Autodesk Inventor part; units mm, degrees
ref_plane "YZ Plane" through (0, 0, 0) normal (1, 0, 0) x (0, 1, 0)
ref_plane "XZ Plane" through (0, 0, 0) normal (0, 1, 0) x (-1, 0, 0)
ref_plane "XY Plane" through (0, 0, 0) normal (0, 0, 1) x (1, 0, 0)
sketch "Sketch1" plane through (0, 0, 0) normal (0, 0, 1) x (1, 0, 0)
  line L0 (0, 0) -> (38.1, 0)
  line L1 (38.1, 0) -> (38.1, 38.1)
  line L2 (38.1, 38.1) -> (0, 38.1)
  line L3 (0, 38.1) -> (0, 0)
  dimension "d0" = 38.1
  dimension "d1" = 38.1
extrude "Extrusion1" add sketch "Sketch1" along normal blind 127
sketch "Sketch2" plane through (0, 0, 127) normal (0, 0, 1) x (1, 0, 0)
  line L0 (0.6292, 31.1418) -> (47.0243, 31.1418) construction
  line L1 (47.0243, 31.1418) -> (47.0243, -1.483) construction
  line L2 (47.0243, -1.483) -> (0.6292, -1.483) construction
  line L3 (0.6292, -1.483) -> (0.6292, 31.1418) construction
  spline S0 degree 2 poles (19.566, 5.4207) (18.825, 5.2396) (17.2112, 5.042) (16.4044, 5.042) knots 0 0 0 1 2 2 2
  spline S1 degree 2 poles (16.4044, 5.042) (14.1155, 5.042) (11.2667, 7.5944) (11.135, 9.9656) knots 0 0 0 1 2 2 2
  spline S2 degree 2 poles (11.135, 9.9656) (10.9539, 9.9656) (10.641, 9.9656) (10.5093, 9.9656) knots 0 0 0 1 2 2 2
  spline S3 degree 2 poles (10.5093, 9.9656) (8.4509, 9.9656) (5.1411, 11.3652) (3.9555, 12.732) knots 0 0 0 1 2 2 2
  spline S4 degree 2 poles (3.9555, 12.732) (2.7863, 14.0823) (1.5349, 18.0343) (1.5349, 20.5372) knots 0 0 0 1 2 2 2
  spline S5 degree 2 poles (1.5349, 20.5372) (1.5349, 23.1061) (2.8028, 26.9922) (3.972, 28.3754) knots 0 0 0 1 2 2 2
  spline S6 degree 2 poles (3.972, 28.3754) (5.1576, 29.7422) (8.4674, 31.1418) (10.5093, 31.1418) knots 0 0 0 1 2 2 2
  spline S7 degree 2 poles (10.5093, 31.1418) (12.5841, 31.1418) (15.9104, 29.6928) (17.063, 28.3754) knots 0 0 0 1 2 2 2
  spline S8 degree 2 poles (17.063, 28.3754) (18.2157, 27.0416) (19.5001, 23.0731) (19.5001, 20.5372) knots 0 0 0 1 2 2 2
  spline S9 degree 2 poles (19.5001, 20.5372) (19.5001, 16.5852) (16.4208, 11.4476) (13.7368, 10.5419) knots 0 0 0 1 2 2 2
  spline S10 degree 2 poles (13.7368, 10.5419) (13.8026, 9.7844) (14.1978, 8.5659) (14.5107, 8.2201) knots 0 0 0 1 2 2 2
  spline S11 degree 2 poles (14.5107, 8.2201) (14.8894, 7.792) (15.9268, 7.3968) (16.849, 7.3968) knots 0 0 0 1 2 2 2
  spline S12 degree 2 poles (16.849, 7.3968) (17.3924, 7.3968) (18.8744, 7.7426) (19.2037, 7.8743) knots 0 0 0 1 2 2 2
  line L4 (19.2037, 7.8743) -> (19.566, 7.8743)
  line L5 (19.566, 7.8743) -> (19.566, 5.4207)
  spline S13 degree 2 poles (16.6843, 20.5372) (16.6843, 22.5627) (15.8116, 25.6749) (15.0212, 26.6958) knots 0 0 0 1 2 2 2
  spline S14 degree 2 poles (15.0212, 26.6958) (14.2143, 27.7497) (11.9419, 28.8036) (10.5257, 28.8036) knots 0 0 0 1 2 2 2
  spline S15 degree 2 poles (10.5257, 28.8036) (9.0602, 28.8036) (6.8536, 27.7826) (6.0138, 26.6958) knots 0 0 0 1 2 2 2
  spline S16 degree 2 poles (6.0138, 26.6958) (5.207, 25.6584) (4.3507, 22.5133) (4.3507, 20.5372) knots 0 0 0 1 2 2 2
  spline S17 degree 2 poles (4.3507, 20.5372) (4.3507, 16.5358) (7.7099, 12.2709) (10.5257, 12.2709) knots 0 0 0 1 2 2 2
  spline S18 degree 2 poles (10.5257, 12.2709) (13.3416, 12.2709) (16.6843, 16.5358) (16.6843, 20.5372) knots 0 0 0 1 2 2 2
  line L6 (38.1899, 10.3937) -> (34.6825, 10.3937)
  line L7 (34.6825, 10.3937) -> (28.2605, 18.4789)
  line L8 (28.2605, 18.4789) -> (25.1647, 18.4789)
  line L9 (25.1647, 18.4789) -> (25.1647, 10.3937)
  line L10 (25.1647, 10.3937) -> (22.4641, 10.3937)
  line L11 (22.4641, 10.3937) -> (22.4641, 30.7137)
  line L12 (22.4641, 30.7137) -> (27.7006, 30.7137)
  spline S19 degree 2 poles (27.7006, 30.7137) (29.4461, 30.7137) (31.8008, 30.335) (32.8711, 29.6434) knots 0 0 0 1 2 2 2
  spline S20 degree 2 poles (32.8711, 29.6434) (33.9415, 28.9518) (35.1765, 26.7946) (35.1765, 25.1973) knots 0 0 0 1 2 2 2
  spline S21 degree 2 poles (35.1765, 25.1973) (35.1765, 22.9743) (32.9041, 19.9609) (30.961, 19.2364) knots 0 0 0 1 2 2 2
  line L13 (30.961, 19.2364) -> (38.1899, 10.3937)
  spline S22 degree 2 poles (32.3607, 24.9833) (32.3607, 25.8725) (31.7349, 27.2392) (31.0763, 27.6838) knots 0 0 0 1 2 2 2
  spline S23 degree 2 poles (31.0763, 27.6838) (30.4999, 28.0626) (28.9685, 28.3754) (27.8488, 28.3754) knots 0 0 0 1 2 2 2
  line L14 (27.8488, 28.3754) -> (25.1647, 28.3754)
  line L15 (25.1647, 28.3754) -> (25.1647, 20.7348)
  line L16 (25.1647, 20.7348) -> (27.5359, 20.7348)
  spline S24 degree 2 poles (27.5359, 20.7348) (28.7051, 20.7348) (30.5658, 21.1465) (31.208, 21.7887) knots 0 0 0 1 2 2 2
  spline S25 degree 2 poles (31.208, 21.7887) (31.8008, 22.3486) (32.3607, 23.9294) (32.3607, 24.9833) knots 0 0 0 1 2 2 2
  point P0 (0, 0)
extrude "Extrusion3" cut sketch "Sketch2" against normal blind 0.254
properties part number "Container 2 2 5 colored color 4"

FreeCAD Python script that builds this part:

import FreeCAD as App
import Part
import Sketcher

V = App.Vector
Q = App.Units.Quantity


def add_polygon(sketch, points):
    """Adds a closed chain of lines whose ends are joined by coincident constraints."""
    first, n = sketch.GeometryCount, len(points)
    for a, b in zip(points, points[1:] + points[:1]):
        sketch.addGeometry(Part.LineSegment(App.Vector(*a, 0), App.Vector(*b, 0)), False)
    for i in range(n):
        sketch.addConstraint(Sketcher.Constraint("Coincident", first + i, 2, first + (i + 1) % n, 1))

doc = App.newDocument("Part")
params = doc.addObject("Spreadsheet::Sheet", "Params")
for row, (alias, value) in enumerate([
    ("sketch1_width", "1.5 in"),
    ("pad1_length", "5 in"),
    ("sketch2_height", "0.8 in"),
    ("pocket1_length", "0.01 in"),
], start=1):
    params.set(f"A{row}", alias)
    params.set(f"B{row}", "=" + value)
    params.setAlias(f"B{row}", alias)

body = doc.addObject("PartDesign::Body", "Body")

# Sketch on XY plane
sketch1 = body.newObject("Sketcher::SketchObject", "Sketch")
sketch1.AttachmentSupport = (doc.getObject("XY_Plane"), [""])
sketch1.MapMode = "FlatFace"
add_polygon(sketch1, [(0, 38), (0, 0), (38, 0), (38, 38)])  # lines 0-3
sketch1.addConstraint(Sketcher.Constraint("Vertical", 0))
sketch1.addConstraint(Sketcher.Constraint("Horizontal", 1))
sketch1.addConstraint(Sketcher.Constraint("Vertical", 2))
sketch1.addConstraint(Sketcher.Constraint("Horizontal", 3))
sketch1.addConstraint(Sketcher.Constraint("Coincident", 0, 2, -1, 1))
sketch1.addConstraint(Sketcher.Constraint("Equal", 3, 0))
sketch1.addConstraint(Sketcher.Constraint("DistanceX", 1, 1, 1, 2, Q("1.5 in")))
sketch1.setExpression("Constraints[10]", "Params.sketch1_width")
pad1 = body.newObject("PartDesign::Pad", "Pad")
pad1.Profile = sketch1
pad1.setExpression("Length", "Params.pad1_length")

# Sketch on XY plane
sketch2 = body.newObject("Sketcher::SketchObject", "Sketch001")
sketch2.AttachmentSupport = (doc.getObject("XY_Plane"), [""])
sketch2.MapMode = "FlatFace"
sketch2.AttachmentOffset = App.Placement(V(0, 0, 5 * 25.4), App.Rotation())
sketch2.addGeometry(Part.BSplineCurve([V(19.566, 5.4207, 0), V(18.825, 5.2396, 0), V(17.2112, 5.042, 0), V(16.4044, 5.042, 0)], [3, 1, 3], [0, 1, 2], False, 2, [1, 1, 1, 1], False), False)
sketch2.addGeometry(Part.LineSegment(V(19.566, 5.4207, 0), V(19.566, 7.8743, 0)), False)
sketch2.addGeometry(Part.LineSegment(V(19.566, 7.8743, 0), V(19.2037, 7.8743, 0)), False)
sketch2.addGeometry(Part.BSplineCurve([V(16.849, 7.3968, 0), V(17.3924, 7.3968, 0), V(18.8744, 7.7426, 0), V(19.2037, 7.8743, 0)], [3, 1, 3], [0, 1, 2], False, 2, [1, 1, 1, 1], False), False)
sketch2.addGeometry(Part.BSplineCurve([V(14.5107, 8.2201, 0), V(14.8894, 7.792, 0), V(15.9268, 7.3968, 0), V(16.849, 7.3968, 0)], [3, 1, 3], [0, 1, 2], False, 2, [1, 1, 1, 1], False), False)
sketch2.addGeometry(Part.BSplineCurve([V(13.7368, 10.5419, 0), V(13.8026, 9.7844, 0), V(14.1978, 8.5659, 0), V(14.5107, 8.2201, 0)], [3, 1, 3], [0, 1, 2], False, 2, [1, 1, 1, 1], False), False)
sketch2.addGeometry(Part.BSplineCurve([V(19.5001, 20.5372, 0), V(19.5001, 16.5852, 0), V(16.4208, 11.4476, 0), V(13.7368, 10.5419, 0)], [3, 1, 3], [0, 1, 2], False, 2, [1, 1, 1, 1], False), False)
sketch2.addGeometry(Part.BSplineCurve([V(17.063, 28.3754, 0), V(18.2157, 27.0416, 0), V(19.5001, 23.0731, 0), V(19.5001, 20.5372, 0)], [3, 1, 3], [0, 1, 2], False, 2, [1, 1, 1, 1], False), False)
sketch2.addGeometry(Part.BSplineCurve([V(10.5093, 31.1418, 0), V(12.5841, 31.1418, 0), V(15.9104, 29.6928, 0), V(17.063, 28.3754, 0)], [3, 1, 3], [0, 1, 2], False, 2, [1, 1, 1, 1], False), False)
sketch2.addGeometry(Part.BSplineCurve([V(3.972, 28.3754, 0), V(5.1576, 29.7422, 0), V(8.4674, 31.1418, 0), V(10.5093, 31.1418, 0)], [3, 1, 3], [0, 1, 2], False, 2, [1, 1, 1, 1], False), False)
sketch2.addGeometry(Part.BSplineCurve([V(1.5349, 20.5372, 0), V(1.5349, 23.1061, 0), V(2.8028, 26.9922, 0), V(3.972, 28.3754, 0)], [3, 1, 3], [0, 1, 2], False, 2, [1, 1, 1, 1], False), False)
sketch2.addGeometry(Part.BSplineCurve([V(3.9555, 12.732, 0), V(2.7863, 14.0823, 0), V(1.5349, 18.0343, 0), V(1.5349, 20.5372, 0)], [3, 1, 3], [0, 1, 2], False, 2, [1, 1, 1, 1], False), False)
sketch2.addGeometry(Part.BSplineCurve([V(10.5093, 9.9656, 0), V(8.4509, 9.9656, 0), V(5.1411, 11.3652, 0), V(3.9555, 12.732, 0)], [3, 1, 3], [0, 1, 2], False, 2, [1, 1, 1, 1], False), False)
sketch2.addGeometry(Part.BSplineCurve([V(11.135, 9.9656, 0), V(10.9539, 9.9656, 0), V(10.641, 9.9656, 0), V(10.5093, 9.9656, 0)], [3, 1, 3], [0, 1, 2], False, 2, [1, 1, 1, 1], False), False)
sketch2.addGeometry(Part.BSplineCurve([V(16.4044, 5.042, 0), V(14.1155, 5.042, 0), V(11.2667, 7.5944, 0), V(11.135, 9.9656, 0)], [3, 1, 3], [0, 1, 2], False, 2, [1, 1, 1, 1], False), False)
sketch2.addGeometry(Part.BSplineCurve([V(16.6843, 20.5372, 0), V(16.6843, 22.5627, 0), V(15.8116, 25.6749, 0), V(15.0212, 26.6958, 0)], [3, 1, 3], [0, 1, 2], False, 2, [1, 1, 1, 1], False), False)
sketch2.addGeometry(Part.BSplineCurve([V(10.5257, 12.2709, 0), V(13.3416, 12.2709, 0), V(16.6843, 16.5358, 0), V(16.6843, 20.5372, 0)], [3, 1, 3], [0, 1, 2], False, 2, [1, 1, 1, 1], False), False)
sketch2.addGeometry(Part.BSplineCurve([V(4.3507, 20.5372, 0), V(4.3507, 16.5358, 0), V(7.7099, 12.2709, 0), V(10.5257, 12.2709, 0)], [3, 1, 3], [0, 1, 2], False, 2, [1, 1, 1, 1], False), False)
sketch2.addGeometry(Part.BSplineCurve([V(6.0138, 26.6958, 0), V(5.207, 25.6584, 0), V(4.3507, 22.5133, 0), V(4.3507, 20.5372, 0)], [3, 1, 3], [0, 1, 2], False, 2, [1, 1, 1, 1], False), False)
sketch2.addGeometry(Part.BSplineCurve([V(10.5257, 28.8036, 0), V(9.0602, 28.8036, 0), V(6.8536, 27.7826, 0), V(6.0138, 26.6958, 0)], [3, 1, 3], [0, 1, 2], False, 2, [1, 1, 1, 1], False), False)
sketch2.addGeometry(Part.BSplineCurve([V(15.0212, 26.6958, 0), V(14.2143, 27.7497, 0), V(11.9419, 28.8036, 0), V(10.5257, 28.8036, 0)], [3, 1, 3], [0, 1, 2], False, 2, [1, 1, 1, 1], False), False)
sketch2.addGeometry(Part.LineSegment(V(34.6825, 10.3937, 0), V(38.1899, 10.3937, 0)), False)
sketch2.addGeometry(Part.LineSegment(V(38.1899, 10.3937, 0), V(30.961, 19.2364, 0)), False)
sketch2.addGeometry(Part.BSplineCurve([V(35.1765, 25.1973, 0), V(35.1765, 22.9743, 0), V(32.9041, 19.9609, 0), V(30.961, 19.2364, 0)], [3, 1, 3], [0, 1, 2], False, 2, [1, 1, 1, 1], False), False)
sketch2.addGeometry(Part.BSplineCurve([V(32.8711, 29.6434, 0), V(33.9415, 28.9518, 0), V(35.1765, 26.7946, 0), V(35.1765, 25.1973, 0)], [3, 1, 3], [0, 1, 2], False, 2, [1, 1, 1, 1], False), False)
sketch2.addGeometry(Part.BSplineCurve([V(27.7006, 30.7137, 0), V(29.4461, 30.7137, 0), V(31.8008, 30.335, 0), V(32.8711, 29.6434, 0)], [3, 1, 3], [0, 1, 2], False, 2, [1, 1, 1, 1], False), False)
sketch2.addGeometry(Part.LineSegment(V(27.7006, 30.7137, 0), V(22.4641, 30.7137, 0)), False)
sketch2.addGeometry(Part.LineSegment(V(22.4641, 30.7137, 0), V(22.4641, 10.3937, 0)), False)
sketch2.addGeometry(Part.LineSegment(V(22.4641, 10.3937, 0), V(25.1647, 10.3937, 0)), False)
sketch2.addGeometry(Part.LineSegment(V(25.1647, 10.3937, 0), V(25.1647, 18.4789, 0)), False)
sketch2.addGeometry(Part.LineSegment(V(25.1647, 18.4789, 0), V(28.2605, 18.4789, 0)), False)
sketch2.addGeometry(Part.LineSegment(V(28.2605, 18.4789, 0), V(34.6825, 10.3937, 0)), False)
sketch2.addGeometry(Part.BSplineCurve([V(32.3607, 24.9833, 0), V(32.3607, 25.8725, 0), V(31.7349, 27.2392, 0), V(31.0763, 27.6838, 0)], [3, 1, 3], [0, 1, 2], False, 2, [1, 1, 1, 1], False), False)
sketch2.addGeometry(Part.BSplineCurve([V(31.208, 21.7887, 0), V(31.8008, 22.3486, 0), V(32.3607, 23.9294, 0), V(32.3607, 24.9833, 0)], [3, 1, 3], [0, 1, 2], False, 2, [1, 1, 1, 1], False), False)
sketch2.addGeometry(Part.BSplineCurve([V(27.5359, 20.7348, 0), V(28.7051, 20.7348, 0), V(30.5658, 21.1465, 0), V(31.208, 21.7887, 0)], [3, 1, 3], [0, 1, 2], False, 2, [1, 1, 1, 1], False), False)
sketch2.addGeometry(Part.LineSegment(V(27.5359, 20.7348, 0), V(25.1647, 20.7348, 0)), False)
sketch2.addGeometry(Part.LineSegment(V(25.1647, 20.7348, 0), V(25.1647, 28.3754, 0)), False)
sketch2.addGeometry(Part.LineSegment(V(25.1647, 28.3754, 0), V(27.8488, 28.3754, 0)), False)
sketch2.addGeometry(Part.BSplineCurve([V(31.0763, 27.6838, 0), V(30.4999, 28.0626, 0), V(28.9685, 28.3754, 0), V(27.8488, 28.3754, 0)], [3, 1, 3], [0, 1, 2], False, 2, [1, 1, 1, 1], False), False)
sketch2.addConstraint(Sketcher.Constraint("Block", 0))
sketch2.addConstraint(Sketcher.Constraint("Block", 3))
sketch2.addConstraint(Sketcher.Constraint("Block", 4))
sketch2.addConstraint(Sketcher.Constraint("Block", 5))
sketch2.addConstraint(Sketcher.Constraint("Block", 6))
sketch2.addConstraint(Sketcher.Constraint("Block", 7))
sketch2.addConstraint(Sketcher.Constraint("Block", 8))
sketch2.addConstraint(Sketcher.Constraint("Block", 9))
sketch2.addConstraint(Sketcher.Constraint("Block", 10))
sketch2.addConstraint(Sketcher.Constraint("Block", 11))
sketch2.addConstraint(Sketcher.Constraint("Block", 12))
sketch2.addConstraint(Sketcher.Constraint("Block", 13))
sketch2.addConstraint(Sketcher.Constraint("Block", 14))
sketch2.addConstraint(Sketcher.Constraint("Block", 15))
sketch2.addConstraint(Sketcher.Constraint("Block", 16))
sketch2.addConstraint(Sketcher.Constraint("Block", 17))
sketch2.addConstraint(Sketcher.Constraint("Block", 18))
sketch2.addConstraint(Sketcher.Constraint("Block", 19))
sketch2.addConstraint(Sketcher.Constraint("Block", 20))
sketch2.addConstraint(Sketcher.Constraint("Block", 23))
sketch2.addConstraint(Sketcher.Constraint("Block", 24))
sketch2.addConstraint(Sketcher.Constraint("Block", 25))
sketch2.addConstraint(Sketcher.Constraint("Block", 32))
sketch2.addConstraint(Sketcher.Constraint("Block", 33))
sketch2.addConstraint(Sketcher.Constraint("Block", 34))
sketch2.addConstraint(Sketcher.Constraint("Block", 38))
sketch2.addConstraint(Sketcher.Constraint("Coincident", 0, 1, 1, 1))
sketch2.addConstraint(Sketcher.Constraint("Coincident", 1, 2, 2, 1))
sketch2.addConstraint(Sketcher.Constraint("Coincident", 2, 2, 3, 2))
sketch2.addConstraint(Sketcher.Constraint("Coincident", 21, 2, 22, 1))
sketch2.addConstraint(Sketcher.Constraint("Coincident", 22, 2, 23, 2))
sketch2.addConstraint(Sketcher.Constraint("Coincident", 25, 1, 26, 1))
sketch2.addConstraint(Sketcher.Constraint("Coincident", 26, 2, 27, 1))
sketch2.addConstraint(Sketcher.Constraint("Coincident", 27, 2, 28, 1))
sketch2.addConstraint(Sketcher.Constraint("Coincident", 28, 2, 29, 1))
sketch2.addConstraint(Sketcher.Constraint("Coincident", 29, 2, 30, 1))
sketch2.addConstraint(Sketcher.Constraint("Coincident", 30, 2, 31, 1))
sketch2.addConstraint(Sketcher.Constraint("Coincident", 31, 2, 21, 1))
sketch2.addConstraint(Sketcher.Constraint("Coincident", 34, 1, 35, 1))
sketch2.addConstraint(Sketcher.Constraint("Coincident", 35, 2, 36, 1))
sketch2.addConstraint(Sketcher.Constraint("Coincident", 36, 2, 37, 1))
sketch2.addConstraint(Sketcher.Constraint("Coincident", 37, 2, 38, 2))
sketch2.addConstraint(Sketcher.Constraint("Vertical", 1))
sketch2.addConstraint(Sketcher.Constraint("Horizontal", 2))
sketch2.addConstraint(Sketcher.Constraint("Horizontal", 21))
sketch2.addConstraint(Sketcher.Constraint("Horizontal", 26))
sketch2.addConstraint(Sketcher.Constraint("Vertical", 27))
sketch2.addConstraint(Sketcher.Constraint("Horizontal", 28))
sketch2.addConstraint(Sketcher.Constraint("Vertical", 29))
sketch2.addConstraint(Sketcher.Constraint("Horizontal", 30))
sketch2.addConstraint(Sketcher.Constraint("Horizontal", 35))
sketch2.addConstraint(Sketcher.Constraint("Vertical", 36))
sketch2.addConstraint(Sketcher.Constraint("Horizontal", 37))
sketch2.addConstraint(Sketcher.Constraint("Horizontal", 21, 2, 27, 2))
sketch2.addConstraint(Sketcher.Constraint("Vertical", 29, 2, 35, 2))
sketch2.addConstraint(Sketcher.Constraint("DistanceY", 27, 2, 27, 1, Q("0.8 in")))
sketch2.addConstraint(Sketcher.Constraint("Angle", 31, Q("-51.5402 deg")))
sketch2.addConstraint(Sketcher.Constraint("DistanceX", 26, 2, 37, 2, Q("0.212 in")))
sketch2.addConstraint(Sketcher.Constraint("Distance", 31, Q("0.4065 in")))
sketch2.addConstraint(Sketcher.Constraint("DistanceX", 21, 1, 21, 2, 3.5074))
sketch2.addConstraint(Sketcher.Constraint("DistanceX", 28, 1, 28, 2, 2.7006))
sketch2.addConstraint(Sketcher.Constraint("DistanceX", 30, 1, 30, 2, 3.0958))
sketch2.setExpression("Constraints[55]", "Params.sketch2_height")
pocket1 = body.newObject("PartDesign::Pocket", "Pocket")
pocket1.Profile = sketch2
pocket1.setExpression("Length", "Params.pocket1_length")

doc.recompute()
